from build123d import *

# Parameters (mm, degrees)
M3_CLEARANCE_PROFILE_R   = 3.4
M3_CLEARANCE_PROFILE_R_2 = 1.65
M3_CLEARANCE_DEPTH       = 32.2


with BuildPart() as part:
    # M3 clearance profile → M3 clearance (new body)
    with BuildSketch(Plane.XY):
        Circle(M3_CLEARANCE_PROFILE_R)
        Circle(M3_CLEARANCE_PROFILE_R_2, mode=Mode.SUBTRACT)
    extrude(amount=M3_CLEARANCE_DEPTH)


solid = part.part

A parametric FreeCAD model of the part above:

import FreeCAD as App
import Part
import Sketcher

V = App.Vector

doc = App.newDocument("Part")
params = doc.addObject("Spreadsheet::Sheet", "Params")
for row, (alias, value) in enumerate([
    ("sketch1_diameter", "6.8 mm"),
    ("sketch1_diameter2", "3.3 mm"),
    ("pad1_length", "32.2 mm"),
], start=1):
    params.set(f"A{row}", alias)
    params.set(f"B{row}", "=" + value)
    params.setAlias(f"B{row}", alias)

body = doc.addObject("PartDesign::Body", "Body")

sketch1 = body.newObject("Sketcher::SketchObject", "Sketch")
sketch1.AttachmentSupport = (doc.getObject("XY_Plane"), [""])
sketch1.MapMode = "FlatFace"
sketch1.addGeometry([
    Part.Circle(V(0, 0, 0), V(0, 0, 1), 3.4),
    Part.Circle(V(0, 0, 0), V(0, 0, 1), 1.6),
], False)
sketch1.addConstraint([
    Sketcher.Constraint("Coincident", 0, 3, -1, 1),
    Sketcher.Constraint("Coincident", 1, 3, -1, 1),
    Sketcher.Constraint("Diameter", 0, 6.8),
    Sketcher.Constraint("Diameter", 1, 3.3),
])
sketch1.setExpression("Constraints[2]", "Params.sketch1_diameter")
sketch1.setExpression("Constraints[3]", "Params.sketch1_diameter2")
pad1 = body.newObject("PartDesign::Pad", "Pad")
pad1.Profile = sketch1
pad1.setExpression("Length", "Params.pad1_length")

doc.recompute()
